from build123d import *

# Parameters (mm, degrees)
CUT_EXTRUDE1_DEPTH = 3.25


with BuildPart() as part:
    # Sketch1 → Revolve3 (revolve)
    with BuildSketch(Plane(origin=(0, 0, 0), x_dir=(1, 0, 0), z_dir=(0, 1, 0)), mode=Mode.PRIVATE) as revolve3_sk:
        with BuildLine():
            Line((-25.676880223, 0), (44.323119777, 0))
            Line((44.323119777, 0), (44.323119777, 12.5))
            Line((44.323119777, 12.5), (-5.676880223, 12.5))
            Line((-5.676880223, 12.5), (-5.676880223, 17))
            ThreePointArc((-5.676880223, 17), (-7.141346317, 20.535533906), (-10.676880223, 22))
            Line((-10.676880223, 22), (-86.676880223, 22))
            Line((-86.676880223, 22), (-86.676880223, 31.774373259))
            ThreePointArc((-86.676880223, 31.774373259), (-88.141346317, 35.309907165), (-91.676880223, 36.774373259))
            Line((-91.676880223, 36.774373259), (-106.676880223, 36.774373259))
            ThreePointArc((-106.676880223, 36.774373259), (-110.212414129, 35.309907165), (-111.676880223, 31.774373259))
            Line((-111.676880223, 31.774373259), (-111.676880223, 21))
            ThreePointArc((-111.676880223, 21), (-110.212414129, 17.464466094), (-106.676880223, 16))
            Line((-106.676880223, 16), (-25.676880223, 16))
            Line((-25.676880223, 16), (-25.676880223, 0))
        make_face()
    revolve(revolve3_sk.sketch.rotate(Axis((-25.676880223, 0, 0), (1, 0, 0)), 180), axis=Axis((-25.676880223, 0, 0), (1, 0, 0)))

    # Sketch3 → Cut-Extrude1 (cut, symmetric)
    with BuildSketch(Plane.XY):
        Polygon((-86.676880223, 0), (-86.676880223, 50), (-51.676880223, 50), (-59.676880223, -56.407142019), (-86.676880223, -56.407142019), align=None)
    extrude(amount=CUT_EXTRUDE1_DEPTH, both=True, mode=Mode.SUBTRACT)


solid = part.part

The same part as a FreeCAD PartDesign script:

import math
import FreeCAD as App
import Part
import Sketcher
from FreeCAD import Vector
Q = App.Units.Quantity

doc = App.newDocument("Part")
body = doc.addObject("PartDesign::Body", "Body")

sketch1 = body.newObject("Sketcher::SketchObject", "Sketch")
sketch1.AttachmentSupport = (doc.getObject("XZ_Plane"), [""])
sketch1.MapMode = "FlatFace"
sketch1.addGeometry([
    Part.LineSegment(Vector(-25.7, 0, 0), Vector(44.3, 0, 0)),
    Part.LineSegment(Vector(44.3, 0, 0), Vector(44.3, -12.5, 0)),
    Part.LineSegment(Vector(44.3, -12.5, 0), Vector(-5.7, -12.5, 0)),
    Part.LineSegment(Vector(-5.7, -12.5, 0), Vector(-5.7, -17, 0)),
    Part.ArcOfCircle(Part.Circle(Vector(-10.7, -17, 0), Vector(0, 0, 1), 5), math.radians(-90), math.radians(0)),
    Part.LineSegment(Vector(-10.7, -22, 0), Vector(-86.7, -22, 0)),
    Part.LineSegment(Vector(-86.7, -22, 0), Vector(-86.7, -31.8, 0)),
    Part.ArcOfCircle(Part.Circle(Vector(-91.7, -31.8, 0), Vector(0, 0, 1), 5), math.radians(-90), math.radians(0)),
    Part.LineSegment(Vector(-91.7, -36.8, 0), Vector(-106.7, -36.8, 0)),
    Part.ArcOfCircle(Part.Circle(Vector(-106.7, -31.8, 0), Vector(0, 0, 1), 5), math.radians(180), math.radians(270)),
    Part.LineSegment(Vector(-111.7, -31.8, 0), Vector(-111.7, -21, 0)),
    Part.ArcOfCircle(Part.Circle(Vector(-106.7, -21, 0), Vector(0, 0, 1), 5), math.radians(90), math.radians(180)),
    Part.LineSegment(Vector(-106.7, -16, 0), Vector(-25.7, -16, 0)),
    Part.LineSegment(Vector(-25.7, -16, 0), Vector(-25.7, 0, 0)),
], False)
sketch1.addConstraint([
    Sketcher.Constraint("Coincident", 0, 2, 1, 1),
    Sketcher.Constraint("Coincident", 1, 2, 2, 1),
    Sketcher.Constraint("Coincident", 2, 2, 3, 1),
    Sketcher.Constraint("Tangent", 3, 2, 4, 2),
    Sketcher.Constraint("Tangent", 4, 1, 5, 1),
    Sketcher.Constraint("Coincident", 5, 2, 6, 1),
    Sketcher.Constraint("Tangent", 6, 2, 7, 2),
    Sketcher.Constraint("Tangent", 7, 1, 8, 1),
    Sketcher.Constraint("Tangent", 8, 2, 9, 2),
    Sketcher.Constraint("Tangent", 9, 1, 10, 1),
    Sketcher.Constraint("Tangent", 10, 2, 11, 2),
    Sketcher.Constraint("Tangent", 11, 1, 12, 1),
    Sketcher.Constraint("Coincident", 12, 2, 13, 1),
    Sketcher.Constraint("Coincident", 13, 2, 0, 1),
    Sketcher.Constraint("Horizontal", 0),
    Sketcher.Constraint("Vertical", 1),
    Sketcher.Constraint("Horizontal", 2),
    Sketcher.Constraint("Vertical", 3),
    Sketcher.Constraint("Horizontal", 5),
    Sketcher.Constraint("Vertical", 6),
    Sketcher.Constraint("Horizontal", 8),
    Sketcher.Constraint("Vertical", 10),
    Sketcher.Constraint("Horizontal", 12),
    Sketcher.Constraint("Vertical", 13),
    Sketcher.Constraint("Equal", 4, 7),
    Sketcher.Constraint("Equal", 7, 9),
    Sketcher.Constraint("Equal", 9, 11),
    Sketcher.Constraint("PointOnObject", 0, 2, -1),
    Sketcher.Constraint("Radius", 4, Q("5 mm")),
    Sketcher.Constraint("DistanceX", 0, 1, 0, 2, Q("70 mm")),
    Sketcher.Constraint("DistanceX", 2, 2, 2, 1, Q("50 mm")),
    Sketcher.Constraint("DistanceX", 5, 2, 5, 1, Q("76 mm")),
    Sketcher.Constraint("DistanceX", 8, 2, 8, 1, Q("15 mm")),
    Sketcher.Constraint("DistanceY", 13, 1, 13, 2, Q("16 mm")),
    Sketcher.Constraint("DistanceY", 1, 2, 1, 1, Q("12.5 mm")),
    Sketcher.Constraint("DistanceY", 3, 2, 3, 1, Q("4.5 mm")),
    Sketcher.Constraint("DistanceY", 6, 2, 6, 1, Q("9.774373 mm")),
    Sketcher.Constraint("DistanceX", 4, 3, -1, 1, Q("10.67688 mm")),
])
revolution = body.newObject("PartDesign::Revolution", "Revolution")
revolution.Profile = sketch1
revolution.ReferenceAxis = (sketch1, ["H_Axis"])
revolution.Angle = 360

sketch2 = body.newObject("Sketcher::SketchObject", "Sketch001")
sketch2.AttachmentSupport = (doc.getObject("XY_Plane"), [""])
sketch2.MapMode = "FlatFace"
sketch2.addGeometry([
    Part.LineSegment(Vector(-87, 50, 0), Vector(-87, -56, 0)),
    Part.LineSegment(Vector(-87, -56, 0), Vector(-60, -56, 0)),
    Part.LineSegment(Vector(-60, -56, 0), Vector(-52, 50, 0)),
    Part.LineSegment(Vector(-52, 50, 0), Vector(-87, 50, 0)),
], False)
sketch2.addConstraint([
    Sketcher.Constraint("Coincident", 0, 2, 1, 1),
    Sketcher.Constraint("Coincident", 1, 2, 2, 1),
    Sketcher.Constraint("Coincident", 2, 2, 3, 1),
    Sketcher.Constraint("Coincident", 3, 2, 0, 1),
    Sketcher.Constraint("Vertical", 0),
    Sketcher.Constraint("Horizontal", 1),
    Sketcher.Constraint("Horizontal", 3),
    Sketcher.Constraint("DistanceX", 1, 1, 1, 2, Q("27 mm")),
    Sketcher.Constraint("DistanceX", 3, 2, 3, 1, Q("35 mm")),
    Sketcher.Constraint("DistanceY", -1, 1, 2, 2, Q("50 mm")),
    Sketcher.Constraint("Distance", 2, Q("106.70745 mm")),
    Sketcher.Constraint("DistanceX", 0, 2, -1, 1, Q("86.67688 mm")),
])
pocket1 = body.newObject("PartDesign::Pocket", "Pocket")
pocket1.Profile = sketch2
pocket1.Length = 6.5
pocket1.Midplane = True

doc.recompute()
